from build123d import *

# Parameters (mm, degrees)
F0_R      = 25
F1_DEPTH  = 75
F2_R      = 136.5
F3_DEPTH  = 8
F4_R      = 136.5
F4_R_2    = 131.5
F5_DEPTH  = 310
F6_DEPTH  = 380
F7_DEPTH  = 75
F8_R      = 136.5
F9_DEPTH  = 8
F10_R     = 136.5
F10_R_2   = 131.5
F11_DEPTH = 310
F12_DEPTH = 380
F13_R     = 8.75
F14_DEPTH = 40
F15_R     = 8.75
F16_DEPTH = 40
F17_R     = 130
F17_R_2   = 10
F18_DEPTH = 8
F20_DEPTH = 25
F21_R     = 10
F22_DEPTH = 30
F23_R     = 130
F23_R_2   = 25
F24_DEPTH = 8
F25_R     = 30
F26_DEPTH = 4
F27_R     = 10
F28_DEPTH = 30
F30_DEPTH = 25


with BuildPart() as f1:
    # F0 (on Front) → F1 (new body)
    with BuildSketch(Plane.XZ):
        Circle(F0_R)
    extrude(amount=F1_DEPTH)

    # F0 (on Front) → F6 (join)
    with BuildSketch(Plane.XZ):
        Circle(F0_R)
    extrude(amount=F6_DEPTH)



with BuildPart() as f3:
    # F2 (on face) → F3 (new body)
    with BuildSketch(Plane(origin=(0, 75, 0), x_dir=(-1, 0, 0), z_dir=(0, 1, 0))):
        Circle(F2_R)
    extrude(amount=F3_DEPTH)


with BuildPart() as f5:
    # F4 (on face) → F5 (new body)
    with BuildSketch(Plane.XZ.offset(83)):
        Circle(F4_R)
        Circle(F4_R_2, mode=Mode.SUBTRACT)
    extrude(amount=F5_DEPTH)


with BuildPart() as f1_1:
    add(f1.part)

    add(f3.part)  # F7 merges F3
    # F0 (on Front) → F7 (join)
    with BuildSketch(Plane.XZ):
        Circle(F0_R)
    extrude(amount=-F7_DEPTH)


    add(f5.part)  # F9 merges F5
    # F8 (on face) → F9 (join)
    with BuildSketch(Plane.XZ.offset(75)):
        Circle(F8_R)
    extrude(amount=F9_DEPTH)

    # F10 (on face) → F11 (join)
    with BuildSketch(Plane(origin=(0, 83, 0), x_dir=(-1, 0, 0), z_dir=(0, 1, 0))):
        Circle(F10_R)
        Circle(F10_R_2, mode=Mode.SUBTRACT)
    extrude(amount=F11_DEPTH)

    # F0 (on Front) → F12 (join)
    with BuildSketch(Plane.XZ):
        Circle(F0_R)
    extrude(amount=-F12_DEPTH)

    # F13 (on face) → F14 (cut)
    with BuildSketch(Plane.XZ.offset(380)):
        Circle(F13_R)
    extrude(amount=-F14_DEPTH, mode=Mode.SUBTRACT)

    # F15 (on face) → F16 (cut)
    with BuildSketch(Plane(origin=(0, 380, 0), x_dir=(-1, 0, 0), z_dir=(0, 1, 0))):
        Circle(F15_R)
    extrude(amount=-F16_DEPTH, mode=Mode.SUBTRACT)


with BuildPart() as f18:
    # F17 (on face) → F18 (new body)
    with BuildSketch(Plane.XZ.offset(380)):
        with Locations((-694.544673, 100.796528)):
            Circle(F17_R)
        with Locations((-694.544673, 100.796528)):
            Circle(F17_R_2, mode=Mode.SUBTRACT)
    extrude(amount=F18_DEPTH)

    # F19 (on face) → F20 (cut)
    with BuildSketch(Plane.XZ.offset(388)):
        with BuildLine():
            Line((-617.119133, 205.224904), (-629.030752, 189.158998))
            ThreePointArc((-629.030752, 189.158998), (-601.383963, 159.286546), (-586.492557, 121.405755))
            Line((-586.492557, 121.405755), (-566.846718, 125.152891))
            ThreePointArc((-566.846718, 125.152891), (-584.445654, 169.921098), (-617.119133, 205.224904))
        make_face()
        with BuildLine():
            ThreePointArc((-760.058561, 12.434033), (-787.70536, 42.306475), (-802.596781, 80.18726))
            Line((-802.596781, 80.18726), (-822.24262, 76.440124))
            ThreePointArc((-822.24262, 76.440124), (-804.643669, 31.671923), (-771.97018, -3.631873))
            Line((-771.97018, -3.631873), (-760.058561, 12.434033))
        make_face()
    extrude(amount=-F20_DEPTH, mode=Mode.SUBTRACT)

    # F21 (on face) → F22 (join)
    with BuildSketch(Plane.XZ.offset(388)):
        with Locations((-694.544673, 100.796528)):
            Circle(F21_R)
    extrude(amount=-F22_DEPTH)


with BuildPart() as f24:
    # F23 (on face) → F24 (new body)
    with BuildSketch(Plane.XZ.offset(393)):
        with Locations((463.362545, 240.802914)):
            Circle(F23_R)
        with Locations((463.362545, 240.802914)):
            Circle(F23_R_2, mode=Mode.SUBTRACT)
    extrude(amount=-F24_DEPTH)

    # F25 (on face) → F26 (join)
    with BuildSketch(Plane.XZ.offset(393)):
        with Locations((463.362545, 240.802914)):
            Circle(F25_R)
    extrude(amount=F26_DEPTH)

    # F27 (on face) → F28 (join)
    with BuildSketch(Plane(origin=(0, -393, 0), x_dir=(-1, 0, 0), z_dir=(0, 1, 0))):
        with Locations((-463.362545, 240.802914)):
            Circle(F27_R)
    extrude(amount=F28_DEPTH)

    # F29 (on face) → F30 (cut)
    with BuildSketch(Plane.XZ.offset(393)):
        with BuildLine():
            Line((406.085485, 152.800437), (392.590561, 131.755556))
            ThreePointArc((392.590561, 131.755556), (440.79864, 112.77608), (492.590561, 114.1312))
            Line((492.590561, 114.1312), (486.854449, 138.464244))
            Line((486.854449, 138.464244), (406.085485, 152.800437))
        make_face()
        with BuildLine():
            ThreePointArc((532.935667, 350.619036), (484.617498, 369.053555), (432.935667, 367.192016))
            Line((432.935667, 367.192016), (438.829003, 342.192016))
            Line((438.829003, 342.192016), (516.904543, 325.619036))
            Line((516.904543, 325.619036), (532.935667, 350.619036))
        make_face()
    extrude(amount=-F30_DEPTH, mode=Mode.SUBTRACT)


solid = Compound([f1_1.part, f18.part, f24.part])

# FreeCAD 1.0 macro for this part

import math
import FreeCAD as App
import Part
import Sketcher

V = App.Vector
Q = App.Units.Quantity

doc = App.newDocument("Part")
body = doc.addObject("PartDesign::Body", "Body")

sketch1 = doc.addObject("Sketcher::SketchObject", "Sketch")
body.addObject(sketch1)
sketch1.AttachmentSupport = (doc.XZ_Plane, [""])
sketch1.MapMode = "FlatFace"
sketch1.addGeometry(Part.Circle(V(0, 0, 0), V(0, 0, 1), 25), False)
sketch1.addConstraint([
    Sketcher.Constraint("Coincident", 0, 3, -1, 1),
    Sketcher.Constraint("Diameter", 0, Q("50 mm")),
])
pad1 = doc.addObject("PartDesign::Pad", "Pad")
body.addObject(pad1)
pad1.Profile = sketch1
pad1.Length = 75

sketch2 = doc.addObject("Sketcher::SketchObject", "Sketch001")
body.addObject(sketch2)
sketch2.AttachmentSupport = (doc.XZ_Plane, [""])
sketch2.MapMode = "FlatFace"
sketch2.addGeometry(Part.Circle(V(0, 0, 0), V(0, 0, 1), 25), False)
sketch2.addConstraint([
    Sketcher.Constraint("Coincident", 0, 3, -1, 1),
    Sketcher.Constraint("Diameter", 0, Q("50 mm")),
])
pad2 = doc.addObject("PartDesign::Pad", "Pad001")
body.addObject(pad2)
pad2.Profile = sketch2
pad2.Length = 380
body2 = doc.addObject("PartDesign::Body", "Body001")

sketch3 = doc.addObject("Sketcher::SketchObject", "Sketch002")
body2.addObject(sketch3)
sketch3.AttachmentSupport = (doc.getObject("XZ_Plane001"), [""])
sketch3.MapMode = "FlatFace"
sketch3.AttachmentOffset = App.Placement(V(0, 0, -75), App.Rotation())
sketch3.addGeometry(Part.Circle(V(0, 0, 0), V(0, 0, 1), 136.5), False)
sketch3.addConstraint([
    Sketcher.Constraint("Coincident", 0, 3, -1, 1),
    Sketcher.Constraint("Diameter", 0, Q("273 mm")),
])
pad3 = doc.addObject("PartDesign::Pad", "Pad002")
body2.addObject(pad3)
pad3.Profile = sketch3
pad3.Length = 8
pad3.Reversed = True
body3 = doc.addObject("PartDesign::Body", "Body002")

sketch4 = doc.addObject("Sketcher::SketchObject", "Sketch003")
body3.addObject(sketch4)
sketch4.AttachmentSupport = (doc.getObject("XZ_Plane002"), [""])
sketch4.MapMode = "FlatFace"
sketch4.AttachmentOffset = App.Placement(V(0, 0, 83), App.Rotation())
sketch4.addGeometry([
    Part.Circle(V(0, 0, 0), V(0, 0, 1), 136.5),
    Part.Circle(V(0, 0, 0), V(0, 0, 1), 131.5),
], False)
sketch4.addConstraint([
    Sketcher.Constraint("Coincident", 0, 3, -1, 1),
    Sketcher.Constraint("Coincident", 1, 3, -1, 1),
    Sketcher.Constraint("Diameter", 0, Q("273 mm")),
    Sketcher.Constraint("Diameter", 1, Q("263 mm")),
])
pad4 = doc.addObject("PartDesign::Pad", "Pad003")
body3.addObject(pad4)
pad4.Profile = sketch4
pad4.Length = 310
body.AllowCompound = True
doc.recompute()

boolean = doc.addObject("PartDesign::Boolean", "Boolean")
body.addObject(boolean)
boolean.Type = "Fuse"
boolean.addObjects([body2])

sketch5 = doc.addObject("Sketcher::SketchObject", "Sketch004")
body.addObject(sketch5)
sketch5.AttachmentSupport = (doc.XZ_Plane, [""])
sketch5.MapMode = "FlatFace"
sketch5.addGeometry(Part.Circle(V(0, 0, 0), V(0, 0, 1), 25), False)
sketch5.addConstraint([
    Sketcher.Constraint("Coincident", 0, 3, -1, 1),
    Sketcher.Constraint("Diameter", 0, Q("50 mm")),
])
pad5 = doc.addObject("PartDesign::Pad", "Pad004")
body.addObject(pad5)
pad5.Profile = sketch5
pad5.Length = 75
pad5.Reversed = True
doc.recompute()

boolean2 = doc.addObject("PartDesign::Boolean", "Boolean001")
body.addObject(boolean2)
boolean2.Type = "Fuse"
boolean2.addObjects([body3])

sketch6 = doc.addObject("Sketcher::SketchObject", "Sketch005")
body.addObject(sketch6)
sketch6.AttachmentSupport = (doc.XZ_Plane, [""])
sketch6.MapMode = "FlatFace"
sketch6.AttachmentOffset = App.Placement(V(0, 0, 75), App.Rotation())
sketch6.addGeometry(Part.Circle(V(0, 0, 0), V(0, 0, 1), 136.5), False)
sketch6.addConstraint([
    Sketcher.Constraint("Coincident", 0, 3, -1, 1),
    Sketcher.Constraint("Diameter", 0, Q("273 mm")),
])
pad6 = doc.addObject("PartDesign::Pad", "Pad005")
body.addObject(pad6)
pad6.Profile = sketch6
pad6.Length = 8

sketch7 = doc.addObject("Sketcher::SketchObject", "Sketch006")
body.addObject(sketch7)
sketch7.AttachmentSupport = (doc.XZ_Plane, [""])
sketch7.MapMode = "FlatFace"
sketch7.AttachmentOffset = App.Placement(V(0, 0, -83), App.Rotation())
sketch7.addGeometry([
    Part.Circle(V(0, 0, 0), V(0, 0, 1), 136.5),
    Part.Circle(V(0, 0, 0), V(0, 0, 1), 131.5),
], False)
sketch7.addConstraint([
    Sketcher.Constraint("Coincident", 0, 3, -1, 1),
    Sketcher.Constraint("Coincident", 1, 3, -1, 1),
    Sketcher.Constraint("Diameter", 0, Q("273 mm")),
    Sketcher.Constraint("Diameter", 1, Q("263 mm")),
])
pad7 = doc.addObject("PartDesign::Pad", "Pad006")
body.addObject(pad7)
pad7.Profile = sketch7
pad7.Length = 310
pad7.Reversed = True

sketch8 = doc.addObject("Sketcher::SketchObject", "Sketch007")
body.addObject(sketch8)
sketch8.AttachmentSupport = (doc.XZ_Plane, [""])
sketch8.MapMode = "FlatFace"
sketch8.addGeometry(Part.Circle(V(0, 0, 0), V(0, 0, 1), 25), False)
sketch8.addConstraint([
    Sketcher.Constraint("Coincident", 0, 3, -1, 1),
    Sketcher.Constraint("Diameter", 0, Q("50 mm")),
])
pad8 = doc.addObject("PartDesign::Pad", "Pad007")
body.addObject(pad8)
pad8.Profile = sketch8
pad8.Length = 380
pad8.Reversed = True

sketch9 = doc.addObject("Sketcher::SketchObject", "Sketch008")
body.addObject(sketch9)
sketch9.AttachmentSupport = (doc.XZ_Plane, [""])
sketch9.MapMode = "FlatFace"
sketch9.AttachmentOffset = App.Placement(V(0, 0, 380), App.Rotation())
sketch9.addGeometry(Part.Circle(V(0, 0, 0), V(0, 0, 1), 8.75), False)
sketch9.addConstraint([
    Sketcher.Constraint("Coincident", 0, 3, -1, 1),
    Sketcher.Constraint("Diameter", 0, Q("17.5 mm")),
])
pocket1 = doc.addObject("PartDesign::Pocket", "Pocket")
body.addObject(pocket1)
pocket1.Profile = sketch9
pocket1.Length = 40

sketch10 = doc.addObject("Sketcher::SketchObject", "Sketch009")
body.addObject(sketch10)
sketch10.AttachmentSupport = (doc.XZ_Plane, [""])
sketch10.MapMode = "FlatFace"
sketch10.AttachmentOffset = App.Placement(V(0, 0, -380), App.Rotation())
sketch10.addGeometry(Part.Circle(V(0, 0, 0), V(0, 0, 1), 8.75), False)
sketch10.addConstraint([
    Sketcher.Constraint("Coincident", 0, 3, -1, 1),
    Sketcher.Constraint("Diameter", 0, Q("17.5 mm")),
])
pocket2 = doc.addObject("PartDesign::Pocket", "Pocket001")
body.addObject(pocket2)
pocket2.Profile = sketch10
pocket2.Length = 40
pocket2.Reversed = True
body4 = doc.addObject("PartDesign::Body", "Body003")

sketch11 = doc.addObject("Sketcher::SketchObject", "Sketch010")
body4.addObject(sketch11)
sketch11.AttachmentSupport = (doc.getObject("XZ_Plane003"), [""])
sketch11.MapMode = "FlatFace"
sketch11.AttachmentOffset = App.Placement(V(0, 0, 380), App.Rotation())
sketch11.addGeometry([
    Part.Circle(V(-694.544673, 100.796528, 0), V(0, 0, 1), 130),
    Part.Circle(V(-694.544673, 100.796528, 0), V(0, 0, 1), 10),
], False)
sketch11.addConstraint([
    Sketcher.Constraint("Coincident", 1, 3, 0, 3),
    Sketcher.Constraint("Diameter", 0, Q("260 mm")),
    Sketcher.Constraint("Diameter", 1, Q("20 mm")),
    Sketcher.Constraint("DistanceX", 0, 3, -1, 1, Q("694.544673 mm")),
    Sketcher.Constraint("DistanceY", -1, 1, 0, 3, Q("100.796528 mm")),
])
pad9 = doc.addObject("PartDesign::Pad", "Pad008")
body4.addObject(pad9)
pad9.Profile = sketch11
pad9.Length = 8

sketch12 = doc.addObject("Sketcher::SketchObject", "Sketch011")
body4.addObject(sketch12)
sketch12.AttachmentSupport = (doc.getObject("XZ_Plane003"), [""])
sketch12.MapMode = "FlatFace"
sketch12.AttachmentOffset = App.Placement(V(0, 0, 388), App.Rotation())
sketch12.addGeometry([
    Part.LineSegment(V(-617.119133, 205.224904, 0), V(-629.030752, 189.158998, 0)),
    Part.ArcOfCircle(Part.Circle(V(-694.544666, 100.796532, 0), V(0, 0, 1), 109.999993), math.radians(10.798558), math.radians(53.445933)),
    Part.LineSegment(V(-586.492557, 121.405755, 0), V(-566.846718, 125.152891, 0)),
    Part.ArcOfCircle(Part.Circle(V(-694.544667, 100.796531, 0), V(0, 0, 1), 129.999994), math.radians(10.79856), math.radians(53.445935)),
    Part.ArcOfCircle(Part.Circle(V(-694.544667, 100.796531, 0), V(0, 0, 1), 110.000007), math.radians(-169.201418), math.radians(-126.554049)),
    Part.LineSegment(V(-802.596781, 80.18726, 0), V(-822.24262, 76.440124, 0)),
    Part.ArcOfCircle(Part.Circle(V(-694.544666, 100.796532, 0), V(0, 0, 1), 130.000008), math.radians(-169.20142), math.radians(-126.55405)),
    Part.LineSegment(V(-771.97018, -3.631873, 0), V(-760.058561, 12.434033, 0)),
], False)
sketch12.addConstraint([
    Sketcher.Constraint("Coincident", 0, 2, 1, 2),
    Sketcher.Constraint("Coincident", 1, 1, 2, 1),
    Sketcher.Constraint("Coincident", 2, 2, 3, 1),
    Sketcher.Constraint("Coincident", 3, 2, 0, 1),
    Sketcher.Constraint("Coincident", 4, 1, 5, 1),
    Sketcher.Constraint("Coincident", 5, 2, 6, 1),
    Sketcher.Constraint("Coincident", 6, 2, 7, 1),
    Sketcher.Constraint("Coincident", 7, 2, 4, 2),
    Sketcher.Constraint("Coincident", 3, 3, 1, 3),
    Sketcher.Constraint("Coincident", 4, 3, 1, 3),
    Sketcher.Constraint("Coincident", 6, 3, 1, 3),
    Sketcher.Constraint("Parallel", 2, 5),
    Sketcher.Constraint("Parallel", 0, 7),
    Sketcher.Constraint("Equal", 2, 5),
    Sketcher.Constraint("Distance", 0, Q("20 mm")),
    Sketcher.Constraint("DistanceY", -1, 1, 0, 2, Q("189.158998 mm")),
    Sketcher.Constraint("Radius", 1, Q("109.999993 mm")),
    Sketcher.Constraint("Radius", 4, Q("110.000007 mm")),
    Sketcher.Constraint("DistanceX", 4, 1, 6, 2, Q("30.626601 mm")),
    Sketcher.Constraint("DistanceY", 7, 2, 4, 3, Q("88.362498 mm")),
    Sketcher.Constraint("DistanceY", -1, 1, 1, 3, Q("100.796532 mm")),
    Sketcher.Constraint("DistanceX", 0, 2, -1, 1, Q("629.030752 mm")),
    Sketcher.Constraint("DistanceX", 2, 2, -1, 1, Q("566.846718 mm")),
    Sketcher.Constraint("DistanceX", 4, 1, -1, 1, Q("802.596781 mm")),
    Sketcher.Constraint("DistanceX", 5, 2, -1, 1, Q("822.24262 mm")),
])
pocket3 = doc.addObject("PartDesign::Pocket", "Pocket002")
body4.addObject(pocket3)
pocket3.Profile = sketch12
pocket3.Length = 25

sketch13 = doc.addObject("Sketcher::SketchObject", "Sketch012")
body4.addObject(sketch13)
sketch13.AttachmentSupport = (doc.getObject("XZ_Plane003"), [""])
sketch13.MapMode = "FlatFace"
sketch13.AttachmentOffset = App.Placement(V(0, 0, 388), App.Rotation())
sketch13.addGeometry(Part.Circle(V(-694.544673, 100.796528, 0), V(0, 0, 1), 10), False)
sketch13.addConstraint([
    Sketcher.Constraint("Diameter", 0, Q("20 mm")),
    Sketcher.Constraint("DistanceX", 0, 3, -1, 1, Q("694.544673 mm")),
    Sketcher.Constraint("DistanceY", -1, 1, 0, 3, Q("100.796528 mm")),
])
pad10 = doc.addObject("PartDesign::Pad", "Pad009")
body4.addObject(pad10)
pad10.Profile = sketch13
pad10.Length = 30
pad10.Reversed = True
body5 = doc.addObject("PartDesign::Body", "Body004")

sketch14 = doc.addObject("Sketcher::SketchObject", "Sketch013")
body5.addObject(sketch14)
sketch14.AttachmentSupport = (doc.getObject("XZ_Plane004"), [""])
sketch14.MapMode = "FlatFace"
sketch14.AttachmentOffset = App.Placement(V(0, 0, 393), App.Rotation())
sketch14.addGeometry([
    Part.Circle(V(463.362545, 240.802914, 0), V(0, 0, 1), 130),
    Part.Circle(V(463.362545, 240.802914, 0), V(0, 0, 1), 25),
], False)
sketch14.addConstraint([
    Sketcher.Constraint("Coincident", 1, 3, 0, 3),
    Sketcher.Constraint("Diameter", 0, Q("260 mm")),
    Sketcher.Constraint("Diameter", 1, Q("50 mm")),
    Sketcher.Constraint("DistanceX", -1, 1, 0, 3, Q("463.362545 mm")),
    Sketcher.Constraint("DistanceY", -1, 1, 0, 3, Q("240.802914 mm")),
])
pad11 = doc.addObject("PartDesign::Pad", "Pad010")
body5.addObject(pad11)
pad11.Profile = sketch14
pad11.Length = 8
pad11.Reversed = True

sketch15 = doc.addObject("Sketcher::SketchObject", "Sketch014")
body5.addObject(sketch15)
sketch15.AttachmentSupport = (doc.getObject("XZ_Plane004"), [""])
sketch15.MapMode = "FlatFace"
sketch15.AttachmentOffset = App.Placement(V(0, 0, 393), App.Rotation())
sketch15.addGeometry(Part.Circle(V(463.362545, 240.802914, 0), V(0, 0, 1), 30), False)
sketch15.addConstraint([
    Sketcher.Constraint("Diameter", 0, Q("60 mm")),
    Sketcher.Constraint("DistanceX", -1, 1, 0, 3, Q("463.362545 mm")),
    Sketcher.Constraint("DistanceY", -1, 1, 0, 3, Q("240.802914 mm")),
])
pad12 = doc.addObject("PartDesign::Pad", "Pad011")
body5.addObject(pad12)
pad12.Profile = sketch15
pad12.Length = 4

sketch16 = doc.addObject("Sketcher::SketchObject", "Sketch015")
body5.addObject(sketch16)
sketch16.AttachmentSupport = (doc.getObject("XZ_Plane004"), [""])
sketch16.MapMode = "FlatFace"
sketch16.AttachmentOffset = App.Placement(V(0, 0, 393), App.Rotation())
sketch16.addGeometry(Part.Circle(V(463.362545, 240.802914, 0), V(0, 0, 1), 10), False)
sketch16.addConstraint([
    Sketcher.Constraint("Diameter", 0, Q("20 mm")),
    Sketcher.Constraint("DistanceX", -1, 1, 0, 3, Q("463.362545 mm")),
    Sketcher.Constraint("DistanceY", -1, 1, 0, 3, Q("240.802914 mm")),
])
pad13 = doc.addObject("PartDesign::Pad", "Pad012")
body5.addObject(pad13)
pad13.Profile = sketch16
pad13.Length = 30
pad13.Reversed = True

sketch17 = doc.addObject("Sketcher::SketchObject", "Sketch016")
body5.addObject(sketch17)
sketch17.AttachmentSupport = (doc.getObject("XZ_Plane004"), [""])
sketch17.MapMode = "FlatFace"
sketch17.AttachmentOffset = App.Placement(V(0, 0, 393), App.Rotation())
sketch17.addGeometry([
    Part.LineSegment(V(406.085485, 152.800437, 0), V(392.590561, 131.755556, 0)),
    Part.ArcOfCircle(Part.Circle(V(463.362545, 240.802914, 0), V(0, 0, 1), 130), math.radians(-122.983663), math.radians(-77.007066)),
    Part.LineSegment(V(492.590561, 114.1312, 0), V(486.854449, 138.464244, 0)),
    Part.LineSegment(V(486.854449, 138.464244, 0), V(406.085485, 152.800437, 0)),
    Part.ArcOfCircle(Part.Circle(V(463.362544, 240.802912, 0), V(0, 0, 1), 130.000002), math.radians(57.644026), math.radians(103.535801)),
    Part.LineSegment(V(432.935667, 367.192016, 0), V(438.829003, 342.192016, 0)),
    Part.LineSegment(V(438.829003, 342.192016, 0), V(516.904543, 325.619036, 0)),
    Part.LineSegment(V(516.904543, 325.619036, 0), V(532.935667, 350.619036, 0)),
], False)
sketch17.addConstraint([
    Sketcher.Constraint("Coincident", 0, 2, 1, 1),
    Sketcher.Constraint("Coincident", 1, 2, 2, 1),
    Sketcher.Constraint("Coincident", 2, 2, 3, 1),
    Sketcher.Constraint("Coincident", 3, 2, 0, 1),
    Sketcher.Constraint("Coincident", 4, 2, 5, 1),
    Sketcher.Constraint("Coincident", 5, 2, 6, 1),
    Sketcher.Constraint("Coincident", 6, 2, 7, 1),
    Sketcher.Constraint("Coincident", 7, 2, 4, 1),
    Sketcher.Constraint("Coincident", 4, 3, 1, 3),
    Sketcher.Constraint("Equal", 1, 4),
    Sketcher.Constraint("Parallel", 2, 5),
    Sketcher.Constraint("Parallel", 0, 7),
    Sketcher.Constraint("Equal", 0, 2),
    Sketcher.Constraint("Radius", 1, Q("130 mm")),
    Sketcher.Constraint("Distance", 0, Q("25 mm")),
    Sketcher.Constraint("DistanceX", 0, 2, 1, 2, Q("100 mm")),
    Sketcher.Constraint("DistanceY", 5, 2, 4, 2, Q("25 mm")),
    Sketcher.Constraint("DistanceY", 6, 2, 7, 2, Q("25 mm")),
    Sketcher.Constraint("DistanceX", 4, 2, 7, 2, Q("100 mm")),
    Sketcher.Constraint("DistanceX", 4, 3, 6, 2, Q("53.541999 mm")),
    Sketcher.Constraint("DistanceY", -1, 1, 1, 2, Q("114.1312 mm")),
    Sketcher.Constraint("Distance", 3, Q("82.031408 mm")),
    Sketcher.Constraint("Distance", 6, Q("79.815121 mm")),
    Sketcher.Constraint("DistanceX", -1, 1, 0, 2, Q("392.590561 mm")),
    Sketcher.Constraint("DistanceX", -1, 1, 2, 2, Q("486.854449 mm")),
])
pocket4 = doc.addObject("PartDesign::Pocket", "Pocket003")
body5.addObject(pocket4)
pocket4.Profile = sketch17
pocket4.Length = 25

doc.recompute()
